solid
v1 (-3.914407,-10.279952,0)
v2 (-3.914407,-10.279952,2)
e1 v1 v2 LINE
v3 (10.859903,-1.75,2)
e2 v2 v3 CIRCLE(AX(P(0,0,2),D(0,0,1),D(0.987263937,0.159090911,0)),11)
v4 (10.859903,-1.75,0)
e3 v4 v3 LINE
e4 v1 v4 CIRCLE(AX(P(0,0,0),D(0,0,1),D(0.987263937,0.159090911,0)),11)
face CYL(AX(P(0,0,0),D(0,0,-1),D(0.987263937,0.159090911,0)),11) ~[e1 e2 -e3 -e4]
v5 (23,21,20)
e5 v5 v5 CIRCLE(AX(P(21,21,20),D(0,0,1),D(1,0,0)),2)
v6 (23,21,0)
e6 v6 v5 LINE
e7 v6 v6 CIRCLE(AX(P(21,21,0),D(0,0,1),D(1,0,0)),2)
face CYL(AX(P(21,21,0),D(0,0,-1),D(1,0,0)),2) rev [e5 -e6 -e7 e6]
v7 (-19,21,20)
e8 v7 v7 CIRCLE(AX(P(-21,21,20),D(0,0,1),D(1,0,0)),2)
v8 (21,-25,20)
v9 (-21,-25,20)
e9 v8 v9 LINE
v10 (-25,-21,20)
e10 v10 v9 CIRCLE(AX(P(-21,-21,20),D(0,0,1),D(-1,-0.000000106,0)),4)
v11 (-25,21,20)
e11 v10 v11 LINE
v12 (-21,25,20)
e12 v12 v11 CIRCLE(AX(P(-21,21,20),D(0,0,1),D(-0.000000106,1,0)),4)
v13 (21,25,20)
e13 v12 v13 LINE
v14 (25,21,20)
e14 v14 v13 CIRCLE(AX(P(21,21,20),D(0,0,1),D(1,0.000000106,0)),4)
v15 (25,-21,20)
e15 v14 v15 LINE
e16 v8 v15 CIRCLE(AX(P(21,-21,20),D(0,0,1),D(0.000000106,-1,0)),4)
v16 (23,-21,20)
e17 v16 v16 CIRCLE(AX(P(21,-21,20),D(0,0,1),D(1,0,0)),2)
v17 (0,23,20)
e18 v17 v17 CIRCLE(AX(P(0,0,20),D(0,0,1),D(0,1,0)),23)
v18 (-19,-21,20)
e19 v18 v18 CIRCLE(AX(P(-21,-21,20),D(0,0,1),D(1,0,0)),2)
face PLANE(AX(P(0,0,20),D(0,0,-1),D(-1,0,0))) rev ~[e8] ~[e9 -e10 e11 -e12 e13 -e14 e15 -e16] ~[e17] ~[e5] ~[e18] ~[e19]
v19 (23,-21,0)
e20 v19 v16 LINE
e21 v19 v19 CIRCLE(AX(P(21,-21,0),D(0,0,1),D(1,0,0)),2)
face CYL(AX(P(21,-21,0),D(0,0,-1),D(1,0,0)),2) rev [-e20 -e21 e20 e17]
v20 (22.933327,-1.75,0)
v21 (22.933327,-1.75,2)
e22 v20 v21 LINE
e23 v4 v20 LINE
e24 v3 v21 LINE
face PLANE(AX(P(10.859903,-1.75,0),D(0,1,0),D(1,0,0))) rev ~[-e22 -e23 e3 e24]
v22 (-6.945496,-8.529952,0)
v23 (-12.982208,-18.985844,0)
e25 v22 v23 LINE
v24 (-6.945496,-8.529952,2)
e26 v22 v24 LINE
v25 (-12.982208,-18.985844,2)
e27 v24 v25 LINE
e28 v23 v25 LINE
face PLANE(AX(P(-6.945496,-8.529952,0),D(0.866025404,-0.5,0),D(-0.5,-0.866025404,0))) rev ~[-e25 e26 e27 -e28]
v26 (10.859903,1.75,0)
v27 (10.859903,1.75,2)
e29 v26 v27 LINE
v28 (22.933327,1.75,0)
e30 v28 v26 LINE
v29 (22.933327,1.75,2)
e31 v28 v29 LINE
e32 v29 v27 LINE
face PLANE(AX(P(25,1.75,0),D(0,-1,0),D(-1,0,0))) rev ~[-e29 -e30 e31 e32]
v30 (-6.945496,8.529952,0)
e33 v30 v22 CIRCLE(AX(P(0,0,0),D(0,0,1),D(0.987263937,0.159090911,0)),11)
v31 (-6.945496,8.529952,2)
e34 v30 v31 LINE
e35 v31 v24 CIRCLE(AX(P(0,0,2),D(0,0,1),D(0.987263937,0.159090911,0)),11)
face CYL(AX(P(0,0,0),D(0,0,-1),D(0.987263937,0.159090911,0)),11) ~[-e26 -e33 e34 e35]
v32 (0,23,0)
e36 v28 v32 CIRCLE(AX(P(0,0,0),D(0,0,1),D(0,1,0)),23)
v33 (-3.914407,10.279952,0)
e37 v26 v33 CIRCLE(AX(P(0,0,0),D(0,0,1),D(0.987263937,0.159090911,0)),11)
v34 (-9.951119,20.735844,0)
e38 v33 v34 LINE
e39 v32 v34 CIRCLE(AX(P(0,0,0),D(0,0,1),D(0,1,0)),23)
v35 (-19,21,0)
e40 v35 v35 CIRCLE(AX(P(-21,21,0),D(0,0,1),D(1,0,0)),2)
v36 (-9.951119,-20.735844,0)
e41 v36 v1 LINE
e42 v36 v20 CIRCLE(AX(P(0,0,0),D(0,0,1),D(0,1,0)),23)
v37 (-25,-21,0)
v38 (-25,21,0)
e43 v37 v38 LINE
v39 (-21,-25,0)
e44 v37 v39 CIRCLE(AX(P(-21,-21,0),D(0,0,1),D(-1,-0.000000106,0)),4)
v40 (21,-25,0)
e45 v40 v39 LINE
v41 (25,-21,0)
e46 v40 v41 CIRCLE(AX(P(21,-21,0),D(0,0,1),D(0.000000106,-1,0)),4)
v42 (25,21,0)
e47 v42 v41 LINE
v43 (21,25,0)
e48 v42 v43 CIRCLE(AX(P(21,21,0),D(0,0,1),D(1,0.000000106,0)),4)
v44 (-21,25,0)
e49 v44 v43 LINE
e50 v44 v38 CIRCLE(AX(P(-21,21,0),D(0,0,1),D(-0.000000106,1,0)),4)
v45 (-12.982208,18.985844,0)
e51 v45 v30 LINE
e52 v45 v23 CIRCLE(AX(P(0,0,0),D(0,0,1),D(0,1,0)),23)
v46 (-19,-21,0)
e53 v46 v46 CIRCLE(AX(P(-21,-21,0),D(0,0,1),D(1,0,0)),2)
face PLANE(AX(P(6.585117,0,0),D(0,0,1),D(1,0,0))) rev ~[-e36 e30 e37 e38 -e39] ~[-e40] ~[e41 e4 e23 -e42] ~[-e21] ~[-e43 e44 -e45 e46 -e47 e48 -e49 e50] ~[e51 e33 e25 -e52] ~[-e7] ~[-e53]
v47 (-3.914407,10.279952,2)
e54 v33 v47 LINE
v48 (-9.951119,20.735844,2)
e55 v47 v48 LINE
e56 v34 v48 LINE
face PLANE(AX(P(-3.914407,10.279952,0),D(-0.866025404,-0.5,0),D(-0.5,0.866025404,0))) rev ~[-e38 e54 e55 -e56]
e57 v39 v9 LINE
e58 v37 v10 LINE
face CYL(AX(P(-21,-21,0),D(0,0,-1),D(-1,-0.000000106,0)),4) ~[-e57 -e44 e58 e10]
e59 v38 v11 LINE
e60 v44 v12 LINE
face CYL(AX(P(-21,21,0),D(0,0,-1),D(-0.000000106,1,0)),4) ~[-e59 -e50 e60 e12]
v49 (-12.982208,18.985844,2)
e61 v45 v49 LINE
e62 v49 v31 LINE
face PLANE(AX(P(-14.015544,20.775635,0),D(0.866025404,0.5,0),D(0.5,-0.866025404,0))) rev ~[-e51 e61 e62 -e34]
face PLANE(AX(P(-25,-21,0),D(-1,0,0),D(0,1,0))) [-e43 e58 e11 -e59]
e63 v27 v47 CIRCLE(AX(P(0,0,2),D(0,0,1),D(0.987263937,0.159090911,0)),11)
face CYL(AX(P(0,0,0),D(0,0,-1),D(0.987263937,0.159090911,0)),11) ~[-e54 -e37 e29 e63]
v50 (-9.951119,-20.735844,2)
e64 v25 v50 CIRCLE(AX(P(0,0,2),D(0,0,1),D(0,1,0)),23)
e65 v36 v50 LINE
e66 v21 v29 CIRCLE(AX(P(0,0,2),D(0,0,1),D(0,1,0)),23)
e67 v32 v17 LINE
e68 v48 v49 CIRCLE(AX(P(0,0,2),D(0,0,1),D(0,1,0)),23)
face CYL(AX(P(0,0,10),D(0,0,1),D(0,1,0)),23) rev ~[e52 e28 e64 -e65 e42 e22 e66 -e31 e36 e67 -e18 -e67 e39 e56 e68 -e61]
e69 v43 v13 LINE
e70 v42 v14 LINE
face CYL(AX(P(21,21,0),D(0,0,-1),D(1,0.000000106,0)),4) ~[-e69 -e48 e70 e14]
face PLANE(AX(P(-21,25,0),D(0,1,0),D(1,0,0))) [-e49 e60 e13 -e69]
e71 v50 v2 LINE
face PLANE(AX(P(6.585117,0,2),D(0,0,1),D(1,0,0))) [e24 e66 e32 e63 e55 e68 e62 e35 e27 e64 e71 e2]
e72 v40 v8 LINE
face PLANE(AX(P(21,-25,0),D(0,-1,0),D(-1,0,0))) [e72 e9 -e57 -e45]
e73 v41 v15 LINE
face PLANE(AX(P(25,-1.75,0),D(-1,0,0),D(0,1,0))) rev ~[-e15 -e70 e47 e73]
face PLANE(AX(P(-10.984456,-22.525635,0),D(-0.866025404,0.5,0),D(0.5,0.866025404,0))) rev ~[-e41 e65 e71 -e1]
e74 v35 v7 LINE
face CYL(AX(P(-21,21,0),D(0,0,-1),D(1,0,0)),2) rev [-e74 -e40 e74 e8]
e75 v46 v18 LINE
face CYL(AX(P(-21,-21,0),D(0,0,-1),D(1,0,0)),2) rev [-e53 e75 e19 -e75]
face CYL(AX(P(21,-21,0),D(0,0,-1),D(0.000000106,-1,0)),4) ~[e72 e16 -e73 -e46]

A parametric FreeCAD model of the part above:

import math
import FreeCAD as App
import Part
import Sketcher


def add_polygon(sketch, points):
    """Adds a closed chain of lines whose ends are joined by coincident constraints."""
    first, n = sketch.GeometryCount, len(points)
    for a, b in zip(points, points[1:] + points[:1]):
        sketch.addGeometry(Part.LineSegment(App.Vector(*a, 0), App.Vector(*b, 0)), False)
    for i in range(n):
        sketch.addConstraint(Sketcher.Constraint("Coincident", first + i, 2, first + (i + 1) % n, 1))

doc = App.newDocument("Part")
body = doc.addObject("PartDesign::Body", "Body")

sketch1 = body.newObject("Sketcher::SketchObject", "Sketch")
sketch1.AttachmentSupport = (doc.getObject("XY_Plane"), [""])
sketch1.MapMode = "FlatFace"
sketch1.addGeometry(Part.LineSegment(App.Vector(21, 25, 0), App.Vector(-21, 25, 0)), False)
sketch1.addGeometry(Part.ArcOfCircle(Part.Circle(App.Vector(-21, 21, 0), App.Vector(0, 0, 1), 4), math.radians(90), math.radians(180)), False)
sketch1.addGeometry(Part.LineSegment(App.Vector(-25, 21, 0), App.Vector(-25, -21, 0)), False)
sketch1.addGeometry(Part.ArcOfCircle(Part.Circle(App.Vector(-21, -21, 0), App.Vector(0, 0, 1), 4), math.radians(-180), math.radians(-90)), False)
sketch1.addGeometry(Part.LineSegment(App.Vector(-21, -25, 0), App.Vector(21, -25, 0)), False)
sketch1.addGeometry(Part.ArcOfCircle(Part.Circle(App.Vector(21, -21, 0), App.Vector(0, 0, 1), 4), math.radians(-90), math.radians(0)), False)
sketch1.addGeometry(Part.LineSegment(App.Vector(25, -21, 0), App.Vector(25, 21, 0)), False)
sketch1.addGeometry(Part.ArcOfCircle(Part.Circle(App.Vector(21, 21, 0), App.Vector(0, 0, 1), 4), math.radians(0), math.radians(90)), False)
sketch1.addGeometry(Part.Circle(App.Vector(21, -21, 0), App.Vector(0, 0, 1), 2), False)
sketch1.addGeometry(Part.Circle(App.Vector(-21, -21, 0), App.Vector(0, 0, 1), 2), False)
sketch1.addGeometry(Part.Circle(App.Vector(21, 21, 0), App.Vector(0, 0, 1), 2), False)
sketch1.addGeometry(Part.Circle(App.Vector(-21, 21, 0), App.Vector(0, 0, 1), 2), False)
sketch1.addConstraint(Sketcher.Constraint("Tangent", 0, 2, 1, 1))
sketch1.addConstraint(Sketcher.Constraint("Tangent", 1, 2, 2, 1))
sketch1.addConstraint(Sketcher.Constraint("Tangent", 2, 2, 3, 1))
sketch1.addConstraint(Sketcher.Constraint("Tangent", 3, 2, 4, 1))
sketch1.addConstraint(Sketcher.Constraint("Tangent", 4, 2, 5, 1))
sketch1.addConstraint(Sketcher.Constraint("Tangent", 5, 2, 6, 1))
sketch1.addConstraint(Sketcher.Constraint("Tangent", 6, 2, 7, 1))
sketch1.addConstraint(Sketcher.Constraint("Tangent", 7, 2, 0, 1))
sketch1.addConstraint(Sketcher.Constraint("Horizontal", 0))
sketch1.addConstraint(Sketcher.Constraint("Vertical", 2))
sketch1.addConstraint(Sketcher.Constraint("Horizontal", 4))
sketch1.addConstraint(Sketcher.Constraint("Vertical", 6))
sketch1.addConstraint(Sketcher.Constraint("Coincident", 8, 3, 5, 3))
sketch1.addConstraint(Sketcher.Constraint("Coincident", 9, 3, 3, 3))
sketch1.addConstraint(Sketcher.Constraint("Coincident", 10, 3, 7, 3))
sketch1.addConstraint(Sketcher.Constraint("Coincident", 11, 3, 1, 3))
sketch1.addConstraint(Sketcher.Constraint("Equal", 1, 3))
sketch1.addConstraint(Sketcher.Constraint("Equal", 3, 5))
sketch1.addConstraint(Sketcher.Constraint("Equal", 5, 7))
sketch1.addConstraint(Sketcher.Constraint("Equal", 8, 9))
sketch1.addConstraint(Sketcher.Constraint("Equal", 9, 10))
sketch1.addConstraint(Sketcher.Constraint("Equal", 10, 11))
sketch1.addConstraint(Sketcher.Constraint("Symmetric", 1, 3, 5, 3, -1, 1))
sketch1.addConstraint(Sketcher.Constraint("Equal", 4, 2))
sketch1.addConstraint(Sketcher.Constraint("Diameter", 8, 4.0))
sketch1.addConstraint(Sketcher.Constraint("Radius", 1, 4.0))
sketch1.addConstraint(Sketcher.Constraint("DistanceX", 0, 2, 0, 1, 42.0))
pad1 = body.newObject("PartDesign::Pad", "Pad")
pad1.Profile = sketch1
pad1.Length = 20

sketch2 = body.newObject("Sketcher::SketchObject", "Sketch001")
sketch2.AttachmentSupport = (doc.getObject("YZ_Plane"), [""])
sketch2.MapMode = "FlatFace"
add_polygon(sketch2, [(0, 20), (0, 0), (23, 0), (23, 20)])
sketch2.addConstraint(Sketcher.Constraint("Vertical", 0))
sketch2.addConstraint(Sketcher.Constraint("Horizontal", 1))
sketch2.addConstraint(Sketcher.Constraint("Vertical", 2))
sketch2.addConstraint(Sketcher.Constraint("Horizontal", 3))
sketch2.addConstraint(Sketcher.Constraint("Coincident", 0, 2, -1, 1))
sketch2.addConstraint(Sketcher.Constraint("DistanceX", 1, 1, 1, 2, 23.0))
sketch2.addConstraint(Sketcher.Constraint("DistanceY", 0, 2, 0, 1, 20.0))
groove = body.newObject("PartDesign::Groove", "Groove")
groove.Profile = sketch2
groove.ReferenceAxis = (sketch2, ["V_Axis"])
groove.Angle = 360

sketch3 = body.newObject("Sketcher::SketchObject", "Sketch002")
sketch3.AttachmentSupport = (doc.getObject("XY_Plane"), [""])
sketch3.MapMode = "FlatFace"
sketch3.addGeometry(Part.ArcOfCircle(Part.Circle(App.Vector(0, 0, 0), App.Vector(0, 0, 1), 11), math.radians(9), math.radians(351)), False)
sketch3.addGeometry(Part.LineSegment(App.Vector(10.9, -1.8, 0), App.Vector(25, -1.8, 0)), False)
sketch3.addGeometry(Part.LineSegment(App.Vector(25, -1.8, 0), App.Vector(25, 1.8, 0)), False)
sketch3.addGeometry(Part.LineSegment(App.Vector(25, 1.8, 0), App.Vector(10.9, 1.8, 0)), False)
sketch3.addConstraint(Sketcher.Constraint("Coincident", 0, 2, 1, 1))
sketch3.addConstraint(Sketcher.Constraint("Coincident", 1, 2, 2, 1))
sketch3.addConstraint(Sketcher.Constraint("Coincident", 2, 2, 3, 1))
sketch3.addConstraint(Sketcher.Constraint("Coincident", 3, 2, 0, 1))
sketch3.addConstraint(Sketcher.Constraint("Horizontal", 1))
sketch3.addConstraint(Sketcher.Constraint("Vertical", 2))
sketch3.addConstraint(Sketcher.Constraint("Horizontal", 3))
sketch3.addConstraint(Sketcher.Constraint("Coincident", 0, 3, -1, 1))
sketch3.addConstraint(Sketcher.Constraint("Vertical", 0, 2, 3, 2))
sketch3.addConstraint(Sketcher.Constraint("Radius", 0, 11.0))
sketch3.addConstraint(Sketcher.Constraint("DistanceY", 2, 1, 2, 2, 3.5))
sketch3.addConstraint(Sketcher.Constraint("DistanceX", -1, 1, 1, 2, 25.0))
pad2 = body.newObject("PartDesign::Pad", "Pad001")
pad2.Profile = sketch3
pad2.Length = 2
doc.recompute()

polarpattern = body.newObject("PartDesign::PolarPattern", "PolarPattern")
polarpattern.Originals = [pad2]
polarpattern.Axis = (doc.getObject("Z_Axis"), [""])
polarpattern.Angle = 360
polarpattern.Occurrences = 3
body.Tip = polarpattern

doc.recompute()
